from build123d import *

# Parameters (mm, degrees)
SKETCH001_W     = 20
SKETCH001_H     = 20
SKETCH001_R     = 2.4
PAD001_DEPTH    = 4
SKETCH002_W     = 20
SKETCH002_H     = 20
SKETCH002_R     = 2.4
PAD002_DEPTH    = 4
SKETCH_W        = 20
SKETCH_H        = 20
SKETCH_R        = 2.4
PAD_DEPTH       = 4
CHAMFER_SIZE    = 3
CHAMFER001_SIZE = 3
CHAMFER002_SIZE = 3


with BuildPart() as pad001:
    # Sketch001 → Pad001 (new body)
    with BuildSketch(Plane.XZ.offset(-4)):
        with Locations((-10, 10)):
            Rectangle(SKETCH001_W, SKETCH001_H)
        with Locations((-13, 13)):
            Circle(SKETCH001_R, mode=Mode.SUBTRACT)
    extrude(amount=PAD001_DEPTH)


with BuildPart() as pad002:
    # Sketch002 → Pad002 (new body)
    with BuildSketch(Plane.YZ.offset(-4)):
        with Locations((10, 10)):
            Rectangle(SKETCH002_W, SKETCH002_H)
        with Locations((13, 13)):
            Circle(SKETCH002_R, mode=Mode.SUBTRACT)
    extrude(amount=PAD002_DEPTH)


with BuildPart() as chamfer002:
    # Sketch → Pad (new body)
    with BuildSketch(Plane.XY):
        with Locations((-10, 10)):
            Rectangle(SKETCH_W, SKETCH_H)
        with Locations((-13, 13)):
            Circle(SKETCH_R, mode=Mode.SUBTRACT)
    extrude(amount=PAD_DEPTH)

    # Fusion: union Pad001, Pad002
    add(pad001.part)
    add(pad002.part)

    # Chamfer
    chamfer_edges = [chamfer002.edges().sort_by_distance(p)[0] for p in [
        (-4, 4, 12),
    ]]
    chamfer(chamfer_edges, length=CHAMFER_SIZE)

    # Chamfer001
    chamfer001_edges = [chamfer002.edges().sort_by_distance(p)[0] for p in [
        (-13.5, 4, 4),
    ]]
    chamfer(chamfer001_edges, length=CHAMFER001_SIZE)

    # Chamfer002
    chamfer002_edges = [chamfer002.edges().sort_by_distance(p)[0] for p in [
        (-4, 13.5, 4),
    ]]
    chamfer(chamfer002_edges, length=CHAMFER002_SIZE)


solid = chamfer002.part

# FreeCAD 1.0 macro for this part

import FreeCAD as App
import Part
import Sketcher

V = App.Vector


def edges_at(feature, points):
    """Names of the edges that pass closest to the given points."""
    edges = feature.Shape.Edges
    near = lambda p: min(range(len(edges)), key=lambda i: edges[i].distToShape(Part.Vertex(*p))[0])
    return sorted({f"Edge{near(p) + 1}" for p in points})


def add_polygon(sketch, points):
    """Adds a closed chain of lines whose ends are joined by coincident constraints."""
    first, n = sketch.GeometryCount, len(points)
    for a, b in zip(points, points[1:] + points[:1]):
        sketch.addGeometry(Part.LineSegment(App.Vector(*a, 0), App.Vector(*b, 0)), False)
    for i in range(n):
        sketch.addConstraint(Sketcher.Constraint("Coincident", first + i, 2, first + (i + 1) % n, 1))

doc = App.newDocument("Part")
body = doc.addObject("PartDesign::Body", "Body")

# Sketch on XZ plane
sketch1 = body.newObject("Sketcher::SketchObject", "Sketch")
sketch1.AttachmentSupport = (doc.getObject("XZ_Plane"), [""])
sketch1.MapMode = "FlatFace"
sketch1.AttachmentOffset = App.Placement(V(0, 0, -4), App.Rotation())
add_polygon(sketch1, [(-20, 20), (-20, 0), (0, 0), (0, 20)])  # lines 0-3
sketch1.addGeometry(Part.Circle(V(-13, 13, 0), V(0, 0, 1), 2.4), False)  # 4
sketch1.addConstraint(Sketcher.Constraint("Vertical", 0))
sketch1.addConstraint(Sketcher.Constraint("Horizontal", 1))
sketch1.addConstraint(Sketcher.Constraint("Vertical", 2))
sketch1.addConstraint(Sketcher.Constraint("Horizontal", 3))
sketch1.addConstraint(Sketcher.Constraint("Coincident", 1, 2, -1, 1))
sketch1.addConstraint(Sketcher.Constraint("Equal", 3, 0))
sketch1.addConstraint(Sketcher.Constraint("Diameter", 4, 4.8))
sketch1.addConstraint(Sketcher.Constraint("DistanceX", 1, 1, 1, 2, 20.0))
sketch1.addConstraint(Sketcher.Constraint("DistanceX", 4, 3, -1, 1, 13.0))
sketch1.addConstraint(Sketcher.Constraint("DistanceY", -1, 1, 4, 3, 13.0))
pad1 = body.newObject("PartDesign::Pad", "Pad")
pad1.Profile = sketch1
pad1.Length = 4
body2 = doc.addObject("PartDesign::Body", "Body001")

# Sketch on YZ plane
sketch2 = body2.newObject("Sketcher::SketchObject", "Sketch001")
sketch2.AttachmentSupport = (doc.getObject("YZ_Plane001"), [""])
sketch2.MapMode = "FlatFace"
sketch2.AttachmentOffset = App.Placement(V(0, 0, -4), App.Rotation())
add_polygon(sketch2, [(0, 20), (0, 0), (20, 0), (20, 20)])  # lines 0-3
sketch2.addGeometry(Part.Circle(V(13, 13, 0), V(0, 0, 1), 2.4), False)  # 4
sketch2.addConstraint(Sketcher.Constraint("Vertical", 0))
sketch2.addConstraint(Sketcher.Constraint("Horizontal", 1))
sketch2.addConstraint(Sketcher.Constraint("Vertical", 2))
sketch2.addConstraint(Sketcher.Constraint("Horizontal", 3))
sketch2.addConstraint(Sketcher.Constraint("Coincident", 0, 2, -1, 1))
sketch2.addConstraint(Sketcher.Constraint("Equal", 3, 0))
sketch2.addConstraint(Sketcher.Constraint("Diameter", 4, 4.8))
sketch2.addConstraint(Sketcher.Constraint("DistanceX", 1, 1, 1, 2, 20.0))
sketch2.addConstraint(Sketcher.Constraint("DistanceX", -1, 1, 4, 3, 13.0))
sketch2.addConstraint(Sketcher.Constraint("DistanceY", -1, 1, 4, 3, 13.0))
pad2 = body2.newObject("PartDesign::Pad", "Pad001")
pad2.Profile = sketch2
pad2.Length = 4
body3 = doc.addObject("PartDesign::Body", "Body002")

# Sketch on XY plane
sketch3 = body3.newObject("Sketcher::SketchObject", "Sketch002")
sketch3.AttachmentSupport = (doc.getObject("XY_Plane002"), [""])
sketch3.MapMode = "FlatFace"
add_polygon(sketch3, [(-20, 20), (-20, 0), (0, 0), (0, 20)])  # lines 0-3
sketch3.addGeometry(Part.Circle(V(-13, 13, 0), V(0, 0, 1), 2.4), False)  # 4
sketch3.addConstraint(Sketcher.Constraint("Vertical", 0))
sketch3.addConstraint(Sketcher.Constraint("Horizontal", 1))
sketch3.addConstraint(Sketcher.Constraint("Vertical", 2))
sketch3.addConstraint(Sketcher.Constraint("Horizontal", 3))
sketch3.addConstraint(Sketcher.Constraint("Coincident", 1, 2, -1, 1))
sketch3.addConstraint(Sketcher.Constraint("Equal", 3, 0))
sketch3.addConstraint(Sketcher.Constraint("Diameter", 4, 4.8))
sketch3.addConstraint(Sketcher.Constraint("DistanceX", 1, 1, 1, 2, 20.0))
sketch3.addConstraint(Sketcher.Constraint("DistanceX", 4, 3, -1, 1, 13.0))
sketch3.addConstraint(Sketcher.Constraint("DistanceY", -1, 1, 4, 3, 13.0))
pad3 = body3.newObject("PartDesign::Pad", "Pad002")
pad3.Profile = sketch3
pad3.Length = 4
doc.recompute()

boolean = body3.newObject("PartDesign::Boolean", "Boolean")
boolean.Type = "Fuse"
boolean.addObjects([body])
doc.recompute()

boolean2 = body3.newObject("PartDesign::Boolean", "Boolean001")
boolean2.Type = "Fuse"
boolean2.addObjects([body2])
doc.recompute()

chamfer = body3.newObject("PartDesign::Chamfer", "Chamfer")
chamfer.Base = (boolean2, edges_at(boolean2, [(-4, 4, 12)]))
chamfer.Size = 3
doc.recompute()

chamfer2 = body3.newObject("PartDesign::Chamfer", "Chamfer001")
chamfer2.Base = (chamfer, edges_at(chamfer, [(-13.5, 4, 4)]))
chamfer2.Size = 3
doc.recompute()

chamfer3 = body3.newObject("PartDesign::Chamfer", "Chamfer002")
chamfer3.Base = (chamfer2, edges_at(chamfer2, [(-4, 13.5, 4)]))
chamfer3.Size = 3

doc.recompute()
